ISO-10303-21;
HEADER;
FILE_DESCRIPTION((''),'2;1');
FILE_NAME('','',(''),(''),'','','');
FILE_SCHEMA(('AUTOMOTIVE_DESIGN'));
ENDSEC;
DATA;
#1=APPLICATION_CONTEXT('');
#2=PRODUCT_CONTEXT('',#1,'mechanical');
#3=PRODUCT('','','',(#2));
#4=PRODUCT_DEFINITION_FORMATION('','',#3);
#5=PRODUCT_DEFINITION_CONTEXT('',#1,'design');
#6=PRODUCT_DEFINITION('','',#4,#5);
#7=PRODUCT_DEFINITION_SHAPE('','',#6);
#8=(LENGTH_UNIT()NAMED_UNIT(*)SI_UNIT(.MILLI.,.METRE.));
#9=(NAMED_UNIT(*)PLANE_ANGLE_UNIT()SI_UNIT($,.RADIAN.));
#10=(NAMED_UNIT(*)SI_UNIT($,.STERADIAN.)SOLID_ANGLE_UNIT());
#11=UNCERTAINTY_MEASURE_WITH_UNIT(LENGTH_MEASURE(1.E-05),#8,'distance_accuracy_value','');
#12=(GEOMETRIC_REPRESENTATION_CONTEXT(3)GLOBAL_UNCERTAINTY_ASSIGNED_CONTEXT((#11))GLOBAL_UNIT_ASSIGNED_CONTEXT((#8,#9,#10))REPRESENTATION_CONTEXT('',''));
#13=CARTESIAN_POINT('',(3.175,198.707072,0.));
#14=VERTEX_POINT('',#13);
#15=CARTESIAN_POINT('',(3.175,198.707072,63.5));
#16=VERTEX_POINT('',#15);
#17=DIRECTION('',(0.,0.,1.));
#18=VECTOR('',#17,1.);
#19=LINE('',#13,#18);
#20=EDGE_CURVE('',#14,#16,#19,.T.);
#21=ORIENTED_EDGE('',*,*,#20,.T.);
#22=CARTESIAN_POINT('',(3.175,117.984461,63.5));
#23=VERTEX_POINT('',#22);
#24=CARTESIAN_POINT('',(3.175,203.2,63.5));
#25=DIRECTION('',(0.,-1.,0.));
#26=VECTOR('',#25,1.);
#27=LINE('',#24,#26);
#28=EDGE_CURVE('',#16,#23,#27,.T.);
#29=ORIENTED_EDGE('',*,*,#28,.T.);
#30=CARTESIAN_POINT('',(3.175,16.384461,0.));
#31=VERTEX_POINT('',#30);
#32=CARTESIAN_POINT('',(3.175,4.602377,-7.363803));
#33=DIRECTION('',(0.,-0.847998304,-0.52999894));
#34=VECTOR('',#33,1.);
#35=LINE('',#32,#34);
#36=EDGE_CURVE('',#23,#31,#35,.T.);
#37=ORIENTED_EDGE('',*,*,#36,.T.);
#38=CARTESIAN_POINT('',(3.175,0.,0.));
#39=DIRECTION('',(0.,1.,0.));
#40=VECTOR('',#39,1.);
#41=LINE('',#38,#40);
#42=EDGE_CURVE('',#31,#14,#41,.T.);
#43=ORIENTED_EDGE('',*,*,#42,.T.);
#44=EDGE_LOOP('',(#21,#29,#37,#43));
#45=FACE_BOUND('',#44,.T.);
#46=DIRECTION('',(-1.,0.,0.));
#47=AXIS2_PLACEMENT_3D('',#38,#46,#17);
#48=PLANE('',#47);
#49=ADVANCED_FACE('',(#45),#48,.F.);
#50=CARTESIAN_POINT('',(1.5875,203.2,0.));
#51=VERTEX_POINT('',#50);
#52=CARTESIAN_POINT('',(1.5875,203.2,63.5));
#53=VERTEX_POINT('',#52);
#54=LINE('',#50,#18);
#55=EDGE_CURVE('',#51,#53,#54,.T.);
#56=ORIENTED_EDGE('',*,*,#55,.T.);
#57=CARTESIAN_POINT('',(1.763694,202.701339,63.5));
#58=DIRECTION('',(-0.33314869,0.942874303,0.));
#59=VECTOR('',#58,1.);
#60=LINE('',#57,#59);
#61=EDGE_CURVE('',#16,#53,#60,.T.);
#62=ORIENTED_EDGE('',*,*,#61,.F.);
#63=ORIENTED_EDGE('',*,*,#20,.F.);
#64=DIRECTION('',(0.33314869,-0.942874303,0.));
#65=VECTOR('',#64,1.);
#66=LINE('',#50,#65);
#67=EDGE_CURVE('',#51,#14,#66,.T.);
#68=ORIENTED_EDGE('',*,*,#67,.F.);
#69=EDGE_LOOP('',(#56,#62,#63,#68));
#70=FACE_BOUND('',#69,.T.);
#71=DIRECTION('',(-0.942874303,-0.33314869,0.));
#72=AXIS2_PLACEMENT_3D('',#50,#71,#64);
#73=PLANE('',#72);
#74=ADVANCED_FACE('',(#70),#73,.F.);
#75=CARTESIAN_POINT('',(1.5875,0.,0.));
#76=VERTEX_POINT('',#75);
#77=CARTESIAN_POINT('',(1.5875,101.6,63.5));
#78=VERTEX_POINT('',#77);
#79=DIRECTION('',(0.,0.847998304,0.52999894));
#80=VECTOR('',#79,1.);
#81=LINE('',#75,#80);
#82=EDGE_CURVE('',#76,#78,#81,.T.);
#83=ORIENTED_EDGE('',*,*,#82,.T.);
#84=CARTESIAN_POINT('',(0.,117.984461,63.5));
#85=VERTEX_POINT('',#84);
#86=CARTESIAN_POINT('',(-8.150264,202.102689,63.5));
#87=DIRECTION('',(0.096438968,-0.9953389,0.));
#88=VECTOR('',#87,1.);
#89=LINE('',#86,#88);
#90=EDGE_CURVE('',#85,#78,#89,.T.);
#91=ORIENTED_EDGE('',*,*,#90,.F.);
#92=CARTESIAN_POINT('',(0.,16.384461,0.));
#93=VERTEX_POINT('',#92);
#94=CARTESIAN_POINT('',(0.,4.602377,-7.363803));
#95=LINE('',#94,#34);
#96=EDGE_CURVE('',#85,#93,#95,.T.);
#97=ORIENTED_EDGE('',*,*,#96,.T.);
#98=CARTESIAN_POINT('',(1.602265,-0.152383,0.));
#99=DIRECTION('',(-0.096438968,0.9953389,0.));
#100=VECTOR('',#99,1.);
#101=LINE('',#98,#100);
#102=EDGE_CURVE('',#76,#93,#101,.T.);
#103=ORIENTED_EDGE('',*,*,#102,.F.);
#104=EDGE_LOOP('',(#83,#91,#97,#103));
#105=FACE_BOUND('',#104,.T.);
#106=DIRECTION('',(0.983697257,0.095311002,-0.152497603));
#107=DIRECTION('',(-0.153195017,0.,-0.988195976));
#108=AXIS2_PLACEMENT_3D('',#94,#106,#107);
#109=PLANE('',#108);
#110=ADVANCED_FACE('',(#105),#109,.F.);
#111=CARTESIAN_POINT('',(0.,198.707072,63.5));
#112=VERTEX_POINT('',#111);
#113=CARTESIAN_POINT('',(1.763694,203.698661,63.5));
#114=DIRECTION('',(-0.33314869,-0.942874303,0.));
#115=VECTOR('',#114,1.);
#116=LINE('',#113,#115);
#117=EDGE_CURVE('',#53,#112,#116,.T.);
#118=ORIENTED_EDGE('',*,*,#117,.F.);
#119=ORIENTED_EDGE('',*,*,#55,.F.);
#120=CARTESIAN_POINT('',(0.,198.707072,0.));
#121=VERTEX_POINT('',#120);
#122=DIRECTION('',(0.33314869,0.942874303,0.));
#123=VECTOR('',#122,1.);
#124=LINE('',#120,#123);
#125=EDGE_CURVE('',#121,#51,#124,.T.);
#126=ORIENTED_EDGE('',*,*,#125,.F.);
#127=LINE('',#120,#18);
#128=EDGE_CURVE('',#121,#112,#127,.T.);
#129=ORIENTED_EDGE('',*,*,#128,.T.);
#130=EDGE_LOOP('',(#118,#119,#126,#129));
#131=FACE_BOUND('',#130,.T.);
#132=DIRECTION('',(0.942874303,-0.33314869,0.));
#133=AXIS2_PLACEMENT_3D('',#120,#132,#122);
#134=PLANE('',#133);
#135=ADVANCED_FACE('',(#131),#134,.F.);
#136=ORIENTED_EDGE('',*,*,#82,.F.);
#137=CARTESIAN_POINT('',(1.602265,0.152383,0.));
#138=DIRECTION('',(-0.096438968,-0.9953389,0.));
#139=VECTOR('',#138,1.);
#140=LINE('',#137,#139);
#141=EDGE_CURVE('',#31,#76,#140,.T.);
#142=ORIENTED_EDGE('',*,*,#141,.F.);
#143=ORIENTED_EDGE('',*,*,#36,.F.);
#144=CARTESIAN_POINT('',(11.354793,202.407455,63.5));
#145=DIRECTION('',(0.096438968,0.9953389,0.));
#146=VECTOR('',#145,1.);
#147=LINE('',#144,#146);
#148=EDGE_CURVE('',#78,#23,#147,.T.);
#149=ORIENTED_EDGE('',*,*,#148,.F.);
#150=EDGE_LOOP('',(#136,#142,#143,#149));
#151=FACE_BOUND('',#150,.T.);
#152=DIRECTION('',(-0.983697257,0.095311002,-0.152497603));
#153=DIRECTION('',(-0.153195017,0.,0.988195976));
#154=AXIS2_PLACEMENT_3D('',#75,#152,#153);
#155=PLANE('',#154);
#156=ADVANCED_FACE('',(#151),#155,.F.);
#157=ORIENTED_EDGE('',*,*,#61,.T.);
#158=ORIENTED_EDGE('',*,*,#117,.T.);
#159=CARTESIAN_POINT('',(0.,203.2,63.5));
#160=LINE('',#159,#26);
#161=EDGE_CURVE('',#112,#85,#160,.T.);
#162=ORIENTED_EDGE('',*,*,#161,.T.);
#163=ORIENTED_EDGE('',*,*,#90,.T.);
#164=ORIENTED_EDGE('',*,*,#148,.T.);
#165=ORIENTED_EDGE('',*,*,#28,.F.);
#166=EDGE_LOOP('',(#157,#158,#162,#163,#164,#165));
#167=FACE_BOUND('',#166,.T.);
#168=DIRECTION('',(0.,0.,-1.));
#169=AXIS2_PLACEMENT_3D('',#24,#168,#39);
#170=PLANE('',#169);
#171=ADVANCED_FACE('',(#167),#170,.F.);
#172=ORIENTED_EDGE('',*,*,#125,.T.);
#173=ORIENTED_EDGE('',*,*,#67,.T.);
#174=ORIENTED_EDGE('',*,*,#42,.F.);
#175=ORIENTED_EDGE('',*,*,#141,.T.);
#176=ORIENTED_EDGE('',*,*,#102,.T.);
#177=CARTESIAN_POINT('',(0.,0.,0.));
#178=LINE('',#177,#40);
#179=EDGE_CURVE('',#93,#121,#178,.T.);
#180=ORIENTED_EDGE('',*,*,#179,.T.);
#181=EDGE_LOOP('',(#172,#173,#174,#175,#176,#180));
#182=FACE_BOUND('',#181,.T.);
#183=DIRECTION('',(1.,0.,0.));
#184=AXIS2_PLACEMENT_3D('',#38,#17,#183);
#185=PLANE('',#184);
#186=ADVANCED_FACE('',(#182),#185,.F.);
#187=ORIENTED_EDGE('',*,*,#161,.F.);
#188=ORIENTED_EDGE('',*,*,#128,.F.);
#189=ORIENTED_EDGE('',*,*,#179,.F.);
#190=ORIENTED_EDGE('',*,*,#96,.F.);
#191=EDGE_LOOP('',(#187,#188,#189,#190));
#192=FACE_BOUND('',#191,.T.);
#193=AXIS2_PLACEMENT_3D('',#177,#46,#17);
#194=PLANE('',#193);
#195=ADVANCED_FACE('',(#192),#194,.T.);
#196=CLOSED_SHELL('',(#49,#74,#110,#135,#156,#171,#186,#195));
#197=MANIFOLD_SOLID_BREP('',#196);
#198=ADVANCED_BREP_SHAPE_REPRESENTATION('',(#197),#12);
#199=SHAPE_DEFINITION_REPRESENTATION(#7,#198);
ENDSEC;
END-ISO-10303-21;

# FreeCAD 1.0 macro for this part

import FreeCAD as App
import Part
import Sketcher
Q = App.Units.Quantity

doc = App.newDocument("Part")
params = doc.addObject("Spreadsheet::Sheet", "Params")
for row, (alias, value) in enumerate([
    ("sketch1_width", "8 in"),
    ("sketch1_width2", "4 in"),
    ("sketch1_height", "2.5 in"),
    ("pad1_length", "0.125 in"),
    ("sketch2_width", "0.125 in"),
    ("sketch3_width", "0.125 in"),
], start=1):
    params.set(f"A{row}", alias)
    params.set(f"B{row}", "=" + value)
    params.setAlias(f"B{row}", alias)

body = doc.addObject("PartDesign::Body", "Body")

# Sketch on YZ plane
sketch1 = body.newObject("Sketcher::SketchObject", "Sketch")
sketch1.AttachmentSupport = (doc.getObject("YZ_Plane"), [""])
sketch1.MapMode = "FlatFace"
sketch1.addGeometry([
    Part.LineSegment(App.Vector(0, 0, 0), App.Vector(203.2, 0, 0)),
    Part.LineSegment(App.Vector(203.2, 0, 0), App.Vector(203.2, 63.5, 0)),
    Part.LineSegment(App.Vector(203.2, 63.5, 0), App.Vector(101.6, 63.5, 0)),
    Part.LineSegment(App.Vector(101.6, 63.5, 0), App.Vector(0, 0, 0)),
], False)
sketch1.addConstraint([
    Sketcher.Constraint("Coincident", 0, 2, 1, 1),
    Sketcher.Constraint("Coincident", 1, 2, 2, 1),
    Sketcher.Constraint("Coincident", 2, 2, 3, 1),
    Sketcher.Constraint("Coincident", 3, 2, 0, 1),
    Sketcher.Constraint("Horizontal", 0),
    Sketcher.Constraint("Vertical", 1),
    Sketcher.Constraint("Horizontal", 2),
    Sketcher.Constraint("Coincident", 3, 2, -1, 1),
    Sketcher.Constraint("DistanceX", 0, 1, 0, 2, Q("8 in")),
    Sketcher.Constraint("DistanceX", 2, 2, 2, 1, Q("4 in")),
    Sketcher.Constraint("DistanceY", 1, 1, 1, 2, Q("2.5 in")),
])
sketch1.setExpression("Constraints[8]", "Params.sketch1_width")
sketch1.setExpression("Constraints[9]", "Params.sketch1_width2")
sketch1.setExpression("Constraints[10]", "Params.sketch1_height")
pad1 = body.newObject("PartDesign::Pad", "Pad")
pad1.Profile = sketch1
pad1.setExpression("Length", "Params.pad1_length")

# Sketch on an angled plane
sketch2 = body.newObject("Sketcher::SketchObject", "Sketch001")
sketch2.Placement = App.Placement(App.Vector(0, 101.6, 63.5), App.Rotation(App.Vector(-1, 0, 0), App.Vector(0, -0.52999894, 0.847998304), App.Vector(0, 0.847998304, 0.52999894), "ZXY"))
sketch2.addGeometry([
    Part.LineSegment(App.Vector(-3.175, 1.50597, 0), App.Vector(-3.175, -8.683747, 0)),  # 0
    Part.LineSegment(App.Vector(-3.175, -8.683747, 0), App.Vector(-1.5875, 0, 0)),  # 1
    Part.LineSegment(App.Vector(-1.5875, 0, 0), App.Vector(0, -8.683747, 0)),  # 2
    Part.LineSegment(App.Vector(0, -8.683747, 0), App.Vector(0, 1.50597, 0)),  # 3
    Part.LineSegment(App.Vector(0, 1.50597, 0), App.Vector(-3.175, 1.50597, 0)),  # 4
], False)
sketch2.addConstraint([
    Sketcher.Constraint("Coincident", 0, 2, 1, 1),
    Sketcher.Constraint("Coincident", 1, 2, 2, 1),
    Sketcher.Constraint("Coincident", 2, 2, 3, 1),
    Sketcher.Constraint("Coincident", 3, 2, 4, 1),
    Sketcher.Constraint("Coincident", 4, 2, 0, 1),
    Sketcher.Constraint("Vertical", 0),
    Sketcher.Constraint("Vertical", 3),
    Sketcher.Constraint("Horizontal", 4),
    Sketcher.Constraint("PointOnObject", 1, 2, -1),
    Sketcher.Constraint("PointOnObject", 2, 2, -2),
    Sketcher.Constraint("Horizontal", 0, 2, 2, 2),
    Sketcher.Constraint("Equal", 1, 2),
    Sketcher.Constraint("DistanceX", 4, 2, 4, 1, Q("0.125 in")),
    Sketcher.Constraint("Angle", 1, Q("79.64 deg")),
    Sketcher.Constraint("DistanceY", 0, 2, 0, 1, 10.189717),
])
sketch2.setExpression("Constraints[12]", "Params.sketch2_width")
pocket1 = body.newObject("PartDesign::Pocket", "Pocket")
pocket1.Profile = sketch2
pocket1.Type = "ThroughAll"
pocket1.Midplane = True

# Sketch on XY plane
sketch3 = body.newObject("Sketcher::SketchObject", "Sketch002")
sketch3.AttachmentSupport = (doc.getObject("XY_Plane"), [""])
sketch3.MapMode = "FlatFace"
sketch3.AttachmentOffset = App.Placement(App.Vector(0, 0, 2.5 * 25.4), App.Rotation())
sketch3.addGeometry([
    Part.LineSegment(App.Vector(0, 198.707072, 0), App.Vector(1.5875, 203.2, 0)),  # 0
    Part.LineSegment(App.Vector(1.5875, 203.2, 0), App.Vector(3.175, 198.707072, 0)),  # 1
    Part.LineSegment(App.Vector(3.175, 198.707072, 0), App.Vector(3.175, 209.769975, 0)),  # 2
    Part.LineSegment(App.Vector(3.175, 209.769975, 0), App.Vector(0, 209.769975, 0)),  # 3
    Part.LineSegment(App.Vector(0, 209.769975, 0), App.Vector(0, 198.707072, 0)),  # 4
], False)
sketch3.addConstraint([
    Sketcher.Constraint("Coincident", 0, 2, 1, 1),
    Sketcher.Constraint("Coincident", 1, 2, 2, 1),
    Sketcher.Constraint("Coincident", 2, 2, 3, 1),
    Sketcher.Constraint("Coincident", 3, 2, 4, 1),
    Sketcher.Constraint("Coincident", 4, 2, 0, 1),
    Sketcher.Constraint("Vertical", 2),
    Sketcher.Constraint("Horizontal", 3),
    Sketcher.Constraint("Vertical", 4),
    Sketcher.Constraint("PointOnObject", 3, 2, -2),
    Sketcher.Constraint("Horizontal", 1, 2, 4, 2),
    Sketcher.Constraint("Equal", 0, 1),
    Sketcher.Constraint("DistanceY", -1, 1, 0, 2, Q("8 in")),
    Sketcher.Constraint("DistanceX", 3, 2, 3, 1, Q("0.125 in")),
    Sketcher.Constraint("Angle", 0, Q("70.54 deg")),
    Sketcher.Constraint("DistanceY", 2, 1, 2, 2, 11.062903),
])
sketch3.setExpression("Constraints[12]", "Params.sketch3_width")
pocket2 = body.newObject("PartDesign::Pocket", "Pocket001")
pocket2.Profile = sketch3
pocket2.Type = "ThroughAll"
pocket2.Midplane = True

doc.recompute()
